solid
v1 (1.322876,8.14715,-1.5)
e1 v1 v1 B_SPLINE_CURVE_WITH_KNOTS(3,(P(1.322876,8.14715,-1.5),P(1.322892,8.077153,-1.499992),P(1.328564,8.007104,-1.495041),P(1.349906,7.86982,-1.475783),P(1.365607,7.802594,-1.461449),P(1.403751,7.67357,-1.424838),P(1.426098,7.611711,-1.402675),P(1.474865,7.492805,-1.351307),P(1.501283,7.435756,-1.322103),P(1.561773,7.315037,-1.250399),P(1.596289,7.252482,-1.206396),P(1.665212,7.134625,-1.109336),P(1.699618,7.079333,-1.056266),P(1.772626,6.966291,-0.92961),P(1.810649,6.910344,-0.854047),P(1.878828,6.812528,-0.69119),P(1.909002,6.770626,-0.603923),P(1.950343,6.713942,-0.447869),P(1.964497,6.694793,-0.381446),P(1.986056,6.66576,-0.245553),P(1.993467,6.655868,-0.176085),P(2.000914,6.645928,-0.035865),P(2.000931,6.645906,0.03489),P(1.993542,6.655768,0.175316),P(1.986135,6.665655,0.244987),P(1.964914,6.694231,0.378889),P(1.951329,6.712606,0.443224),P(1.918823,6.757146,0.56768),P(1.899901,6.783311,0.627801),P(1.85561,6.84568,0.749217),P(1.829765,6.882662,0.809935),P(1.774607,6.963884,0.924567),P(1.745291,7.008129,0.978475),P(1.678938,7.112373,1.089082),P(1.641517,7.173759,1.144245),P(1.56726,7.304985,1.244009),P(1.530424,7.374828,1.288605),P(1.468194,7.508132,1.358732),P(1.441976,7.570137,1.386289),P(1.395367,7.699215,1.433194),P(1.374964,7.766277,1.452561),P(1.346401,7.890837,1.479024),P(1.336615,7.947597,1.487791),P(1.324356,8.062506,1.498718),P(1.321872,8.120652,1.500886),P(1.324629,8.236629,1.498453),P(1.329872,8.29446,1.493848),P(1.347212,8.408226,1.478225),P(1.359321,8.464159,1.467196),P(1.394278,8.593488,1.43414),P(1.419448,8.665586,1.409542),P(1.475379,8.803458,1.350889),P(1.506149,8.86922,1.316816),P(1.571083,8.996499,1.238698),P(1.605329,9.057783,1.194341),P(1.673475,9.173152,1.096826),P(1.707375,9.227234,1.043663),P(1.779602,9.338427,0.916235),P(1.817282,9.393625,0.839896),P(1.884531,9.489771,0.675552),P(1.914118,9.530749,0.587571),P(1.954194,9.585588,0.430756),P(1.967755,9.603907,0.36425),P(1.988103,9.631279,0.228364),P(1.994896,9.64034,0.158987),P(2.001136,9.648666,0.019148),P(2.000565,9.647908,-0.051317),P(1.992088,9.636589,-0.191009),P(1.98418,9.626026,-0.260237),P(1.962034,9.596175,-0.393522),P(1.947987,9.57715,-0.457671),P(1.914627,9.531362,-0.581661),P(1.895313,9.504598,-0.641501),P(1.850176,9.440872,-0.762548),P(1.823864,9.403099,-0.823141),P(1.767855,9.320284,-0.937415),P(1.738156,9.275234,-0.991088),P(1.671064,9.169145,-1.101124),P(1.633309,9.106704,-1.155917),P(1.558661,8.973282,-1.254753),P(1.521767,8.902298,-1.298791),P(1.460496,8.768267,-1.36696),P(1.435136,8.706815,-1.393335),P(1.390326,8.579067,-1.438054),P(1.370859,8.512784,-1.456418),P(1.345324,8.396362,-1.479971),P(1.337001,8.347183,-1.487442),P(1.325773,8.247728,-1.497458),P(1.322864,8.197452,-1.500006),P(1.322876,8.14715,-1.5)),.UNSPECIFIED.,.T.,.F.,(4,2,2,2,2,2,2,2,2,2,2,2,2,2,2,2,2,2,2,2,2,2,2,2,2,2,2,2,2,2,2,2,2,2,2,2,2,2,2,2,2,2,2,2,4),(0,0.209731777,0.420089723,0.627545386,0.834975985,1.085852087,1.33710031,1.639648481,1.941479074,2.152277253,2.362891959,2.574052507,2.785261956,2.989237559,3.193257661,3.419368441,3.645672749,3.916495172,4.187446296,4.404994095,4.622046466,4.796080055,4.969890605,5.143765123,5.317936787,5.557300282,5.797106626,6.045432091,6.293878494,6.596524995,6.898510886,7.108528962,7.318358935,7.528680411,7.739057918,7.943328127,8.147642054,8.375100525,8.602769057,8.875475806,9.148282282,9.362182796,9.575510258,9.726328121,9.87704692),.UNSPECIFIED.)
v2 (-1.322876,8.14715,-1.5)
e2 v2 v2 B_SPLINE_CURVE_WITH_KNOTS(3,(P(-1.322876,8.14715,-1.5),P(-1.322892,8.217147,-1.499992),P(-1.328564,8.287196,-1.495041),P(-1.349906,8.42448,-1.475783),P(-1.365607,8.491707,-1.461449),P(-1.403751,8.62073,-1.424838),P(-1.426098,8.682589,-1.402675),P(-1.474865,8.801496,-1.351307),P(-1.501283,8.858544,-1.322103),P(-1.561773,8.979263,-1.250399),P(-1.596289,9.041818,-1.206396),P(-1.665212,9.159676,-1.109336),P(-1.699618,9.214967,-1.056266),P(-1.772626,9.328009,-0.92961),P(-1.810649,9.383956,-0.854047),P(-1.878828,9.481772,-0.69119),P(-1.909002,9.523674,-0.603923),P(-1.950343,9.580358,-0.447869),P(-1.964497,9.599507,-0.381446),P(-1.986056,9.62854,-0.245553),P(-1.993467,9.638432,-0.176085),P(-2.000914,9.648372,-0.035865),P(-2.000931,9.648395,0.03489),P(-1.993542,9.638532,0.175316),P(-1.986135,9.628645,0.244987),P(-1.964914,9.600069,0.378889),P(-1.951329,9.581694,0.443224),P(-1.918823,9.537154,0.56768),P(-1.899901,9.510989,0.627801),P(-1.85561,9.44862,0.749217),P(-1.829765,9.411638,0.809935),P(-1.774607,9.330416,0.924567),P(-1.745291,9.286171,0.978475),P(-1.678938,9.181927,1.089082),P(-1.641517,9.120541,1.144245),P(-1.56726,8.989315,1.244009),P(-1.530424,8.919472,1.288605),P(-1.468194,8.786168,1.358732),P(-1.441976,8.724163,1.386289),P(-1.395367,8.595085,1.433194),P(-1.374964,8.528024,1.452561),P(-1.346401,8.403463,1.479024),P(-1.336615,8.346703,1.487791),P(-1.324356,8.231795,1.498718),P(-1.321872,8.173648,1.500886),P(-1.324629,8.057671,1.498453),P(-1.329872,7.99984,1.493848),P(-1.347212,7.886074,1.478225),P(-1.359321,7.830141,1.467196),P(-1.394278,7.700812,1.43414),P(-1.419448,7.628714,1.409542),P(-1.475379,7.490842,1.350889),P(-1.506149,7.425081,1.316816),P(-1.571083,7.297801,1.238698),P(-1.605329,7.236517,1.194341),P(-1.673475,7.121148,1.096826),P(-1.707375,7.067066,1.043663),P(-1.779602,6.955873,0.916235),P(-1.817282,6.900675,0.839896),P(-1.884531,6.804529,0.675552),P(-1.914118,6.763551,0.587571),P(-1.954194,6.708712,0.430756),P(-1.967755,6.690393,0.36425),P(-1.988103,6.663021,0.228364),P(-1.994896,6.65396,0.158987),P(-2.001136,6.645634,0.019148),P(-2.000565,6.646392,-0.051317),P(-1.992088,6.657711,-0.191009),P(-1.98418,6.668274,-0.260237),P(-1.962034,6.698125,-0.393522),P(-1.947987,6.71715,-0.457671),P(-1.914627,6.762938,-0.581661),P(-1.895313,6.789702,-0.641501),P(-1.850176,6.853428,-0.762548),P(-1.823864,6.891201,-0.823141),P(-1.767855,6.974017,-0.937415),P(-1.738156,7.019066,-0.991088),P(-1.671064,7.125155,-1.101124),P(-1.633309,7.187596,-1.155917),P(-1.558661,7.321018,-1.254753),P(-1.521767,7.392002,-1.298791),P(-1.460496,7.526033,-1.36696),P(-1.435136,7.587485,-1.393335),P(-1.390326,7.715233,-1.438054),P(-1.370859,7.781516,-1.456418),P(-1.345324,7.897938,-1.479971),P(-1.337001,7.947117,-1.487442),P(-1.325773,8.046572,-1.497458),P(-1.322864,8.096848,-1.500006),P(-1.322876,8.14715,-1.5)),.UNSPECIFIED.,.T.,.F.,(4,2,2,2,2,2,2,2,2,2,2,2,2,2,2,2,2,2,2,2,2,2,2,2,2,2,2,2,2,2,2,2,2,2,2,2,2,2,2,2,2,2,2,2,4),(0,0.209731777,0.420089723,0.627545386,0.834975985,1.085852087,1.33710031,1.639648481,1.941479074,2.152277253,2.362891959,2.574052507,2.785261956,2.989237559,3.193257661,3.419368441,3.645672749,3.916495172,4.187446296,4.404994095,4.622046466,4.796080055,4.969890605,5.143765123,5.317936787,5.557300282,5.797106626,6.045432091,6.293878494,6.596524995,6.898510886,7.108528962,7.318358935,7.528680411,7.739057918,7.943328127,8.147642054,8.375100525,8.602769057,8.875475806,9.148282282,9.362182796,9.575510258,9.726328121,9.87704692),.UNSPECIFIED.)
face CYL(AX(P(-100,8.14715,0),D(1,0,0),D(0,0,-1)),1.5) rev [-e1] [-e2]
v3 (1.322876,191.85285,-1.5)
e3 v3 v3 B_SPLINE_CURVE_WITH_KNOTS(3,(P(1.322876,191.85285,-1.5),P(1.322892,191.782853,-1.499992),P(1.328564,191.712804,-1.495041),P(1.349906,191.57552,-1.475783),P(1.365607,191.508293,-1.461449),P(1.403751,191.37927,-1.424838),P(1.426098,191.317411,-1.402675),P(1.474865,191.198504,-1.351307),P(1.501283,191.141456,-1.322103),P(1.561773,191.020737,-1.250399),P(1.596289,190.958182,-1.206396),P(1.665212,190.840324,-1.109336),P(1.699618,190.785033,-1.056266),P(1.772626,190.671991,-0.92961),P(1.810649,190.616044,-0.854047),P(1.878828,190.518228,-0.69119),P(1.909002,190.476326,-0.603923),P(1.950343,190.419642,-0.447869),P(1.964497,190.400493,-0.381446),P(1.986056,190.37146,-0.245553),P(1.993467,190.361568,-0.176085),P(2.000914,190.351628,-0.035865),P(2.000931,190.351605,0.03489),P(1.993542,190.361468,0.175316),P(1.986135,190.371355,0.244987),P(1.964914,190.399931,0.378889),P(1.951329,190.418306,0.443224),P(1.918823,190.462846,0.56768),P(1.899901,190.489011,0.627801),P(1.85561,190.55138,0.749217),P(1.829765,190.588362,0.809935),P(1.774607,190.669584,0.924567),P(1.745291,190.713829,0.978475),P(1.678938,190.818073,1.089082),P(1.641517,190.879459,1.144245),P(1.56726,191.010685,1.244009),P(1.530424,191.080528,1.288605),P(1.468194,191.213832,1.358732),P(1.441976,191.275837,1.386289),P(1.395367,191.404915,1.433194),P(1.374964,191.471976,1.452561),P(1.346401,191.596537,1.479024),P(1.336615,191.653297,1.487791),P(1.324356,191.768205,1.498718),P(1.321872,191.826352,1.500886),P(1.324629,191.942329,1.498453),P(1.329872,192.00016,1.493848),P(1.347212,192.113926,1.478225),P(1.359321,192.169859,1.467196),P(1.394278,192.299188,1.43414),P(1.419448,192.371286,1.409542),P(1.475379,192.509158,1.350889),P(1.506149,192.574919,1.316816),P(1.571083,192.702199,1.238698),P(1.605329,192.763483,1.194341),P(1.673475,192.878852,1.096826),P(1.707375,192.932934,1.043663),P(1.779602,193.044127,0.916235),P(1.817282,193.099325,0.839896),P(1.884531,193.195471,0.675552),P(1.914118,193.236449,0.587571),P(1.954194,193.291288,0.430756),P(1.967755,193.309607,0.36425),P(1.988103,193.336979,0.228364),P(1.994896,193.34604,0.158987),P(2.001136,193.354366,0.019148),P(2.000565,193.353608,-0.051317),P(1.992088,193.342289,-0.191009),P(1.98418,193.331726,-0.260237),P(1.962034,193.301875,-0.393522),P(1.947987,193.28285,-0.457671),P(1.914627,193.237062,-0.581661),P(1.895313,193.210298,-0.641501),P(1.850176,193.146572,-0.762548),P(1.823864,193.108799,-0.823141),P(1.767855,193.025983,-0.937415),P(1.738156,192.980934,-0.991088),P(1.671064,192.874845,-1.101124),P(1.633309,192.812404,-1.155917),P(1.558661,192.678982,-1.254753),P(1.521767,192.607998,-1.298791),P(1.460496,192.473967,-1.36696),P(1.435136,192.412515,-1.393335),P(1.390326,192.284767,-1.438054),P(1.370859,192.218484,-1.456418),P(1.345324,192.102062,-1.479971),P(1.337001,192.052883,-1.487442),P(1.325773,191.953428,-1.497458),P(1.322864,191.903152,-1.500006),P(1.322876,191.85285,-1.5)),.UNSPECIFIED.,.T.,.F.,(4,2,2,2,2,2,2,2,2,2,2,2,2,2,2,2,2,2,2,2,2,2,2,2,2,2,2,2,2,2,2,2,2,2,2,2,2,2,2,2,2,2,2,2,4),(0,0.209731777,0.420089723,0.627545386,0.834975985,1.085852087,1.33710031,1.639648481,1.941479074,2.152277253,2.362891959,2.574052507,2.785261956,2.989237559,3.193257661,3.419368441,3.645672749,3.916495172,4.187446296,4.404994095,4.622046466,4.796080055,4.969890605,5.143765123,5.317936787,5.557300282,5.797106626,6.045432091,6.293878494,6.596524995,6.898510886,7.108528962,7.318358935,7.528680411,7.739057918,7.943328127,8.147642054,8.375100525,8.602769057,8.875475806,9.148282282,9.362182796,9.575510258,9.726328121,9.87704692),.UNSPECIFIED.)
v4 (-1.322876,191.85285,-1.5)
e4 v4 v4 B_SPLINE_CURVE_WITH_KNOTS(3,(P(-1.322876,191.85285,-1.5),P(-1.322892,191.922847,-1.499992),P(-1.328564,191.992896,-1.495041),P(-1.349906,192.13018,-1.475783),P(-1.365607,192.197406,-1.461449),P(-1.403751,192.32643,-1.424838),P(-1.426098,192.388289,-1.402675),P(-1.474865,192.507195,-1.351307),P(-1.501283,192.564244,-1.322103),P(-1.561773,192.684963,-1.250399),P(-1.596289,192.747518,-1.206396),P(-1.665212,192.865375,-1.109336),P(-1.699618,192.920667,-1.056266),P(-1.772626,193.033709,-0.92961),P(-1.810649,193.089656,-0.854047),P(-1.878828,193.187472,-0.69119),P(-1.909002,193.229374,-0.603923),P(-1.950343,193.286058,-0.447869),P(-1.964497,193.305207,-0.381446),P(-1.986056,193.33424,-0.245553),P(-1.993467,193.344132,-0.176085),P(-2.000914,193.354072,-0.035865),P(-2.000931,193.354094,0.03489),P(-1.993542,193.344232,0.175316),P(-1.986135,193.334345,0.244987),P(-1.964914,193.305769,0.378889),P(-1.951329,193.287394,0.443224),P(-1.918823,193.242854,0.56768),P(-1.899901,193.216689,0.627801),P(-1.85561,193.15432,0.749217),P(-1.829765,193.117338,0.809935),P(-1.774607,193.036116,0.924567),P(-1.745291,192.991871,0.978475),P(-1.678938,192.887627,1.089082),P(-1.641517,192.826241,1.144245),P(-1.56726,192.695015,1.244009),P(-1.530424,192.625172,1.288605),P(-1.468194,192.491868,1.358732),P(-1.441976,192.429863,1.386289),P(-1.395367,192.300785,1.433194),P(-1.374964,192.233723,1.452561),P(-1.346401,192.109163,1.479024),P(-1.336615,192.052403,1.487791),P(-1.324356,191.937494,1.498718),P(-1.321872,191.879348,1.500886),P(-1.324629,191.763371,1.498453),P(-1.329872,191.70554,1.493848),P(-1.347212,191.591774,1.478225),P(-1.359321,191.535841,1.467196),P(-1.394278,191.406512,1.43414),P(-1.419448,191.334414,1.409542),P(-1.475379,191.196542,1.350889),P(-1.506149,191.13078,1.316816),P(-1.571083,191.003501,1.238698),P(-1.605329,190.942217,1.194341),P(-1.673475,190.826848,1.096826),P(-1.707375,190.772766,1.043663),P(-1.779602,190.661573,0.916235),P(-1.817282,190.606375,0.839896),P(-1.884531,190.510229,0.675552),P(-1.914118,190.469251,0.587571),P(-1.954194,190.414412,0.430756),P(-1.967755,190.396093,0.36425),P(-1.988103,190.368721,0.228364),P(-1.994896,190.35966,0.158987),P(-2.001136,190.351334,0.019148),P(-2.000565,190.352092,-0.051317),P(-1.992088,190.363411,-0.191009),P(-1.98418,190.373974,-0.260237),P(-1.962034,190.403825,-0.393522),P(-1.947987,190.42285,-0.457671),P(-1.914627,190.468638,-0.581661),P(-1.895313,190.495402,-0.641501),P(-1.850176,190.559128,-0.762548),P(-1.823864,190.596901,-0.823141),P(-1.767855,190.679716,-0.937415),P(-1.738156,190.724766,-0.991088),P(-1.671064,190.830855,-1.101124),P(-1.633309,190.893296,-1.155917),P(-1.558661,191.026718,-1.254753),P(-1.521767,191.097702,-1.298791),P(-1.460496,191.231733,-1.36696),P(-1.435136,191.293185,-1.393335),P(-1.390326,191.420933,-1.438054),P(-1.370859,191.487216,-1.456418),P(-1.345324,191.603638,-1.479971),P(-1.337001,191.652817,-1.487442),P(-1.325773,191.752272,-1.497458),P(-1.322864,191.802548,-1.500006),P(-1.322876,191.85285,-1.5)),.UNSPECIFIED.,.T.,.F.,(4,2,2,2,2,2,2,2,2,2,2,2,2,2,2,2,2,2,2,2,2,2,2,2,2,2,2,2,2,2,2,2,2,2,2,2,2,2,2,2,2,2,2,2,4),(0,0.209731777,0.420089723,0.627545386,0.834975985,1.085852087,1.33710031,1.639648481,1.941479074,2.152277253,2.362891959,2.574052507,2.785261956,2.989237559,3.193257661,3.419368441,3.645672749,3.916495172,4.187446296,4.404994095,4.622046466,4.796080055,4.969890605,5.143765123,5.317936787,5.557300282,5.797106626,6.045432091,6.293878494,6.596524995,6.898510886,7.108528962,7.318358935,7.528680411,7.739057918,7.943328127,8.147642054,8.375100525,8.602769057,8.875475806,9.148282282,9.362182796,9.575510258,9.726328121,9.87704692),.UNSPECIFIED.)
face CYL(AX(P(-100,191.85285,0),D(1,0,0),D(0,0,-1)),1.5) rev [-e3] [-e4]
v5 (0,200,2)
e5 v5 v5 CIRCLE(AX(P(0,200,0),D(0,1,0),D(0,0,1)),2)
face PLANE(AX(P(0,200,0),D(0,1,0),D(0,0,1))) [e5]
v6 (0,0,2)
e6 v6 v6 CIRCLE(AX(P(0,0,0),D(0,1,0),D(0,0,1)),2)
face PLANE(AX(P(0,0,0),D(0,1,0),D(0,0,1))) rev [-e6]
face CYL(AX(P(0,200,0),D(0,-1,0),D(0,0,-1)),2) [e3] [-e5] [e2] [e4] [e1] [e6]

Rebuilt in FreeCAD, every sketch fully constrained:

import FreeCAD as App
import Part
import Sketcher

V = App.Vector
Q = App.Units.Quantity

doc = App.newDocument("Part")
params = doc.addObject("Spreadsheet::Sheet", "Params")
for row, (alias, value) in enumerate([
    ("sketch1_diameter", "4 mm"),
    ("pad1_length", "200 mm"),
    ("sketch2_diameter", "3 mm"),
    ("pocket1_length", "200 mm"),
], start=1):
    params.set(f"A{row}", alias)
    params.set(f"B{row}", "=" + value)
    params.setAlias(f"B{row}", alias)

body = doc.addObject("PartDesign::Body", "Body")

# Sketch on XZ plane
sketch1 = doc.addObject("Sketcher::SketchObject", "Sketch")
body.addObject(sketch1)
sketch1.AttachmentSupport = (doc.XZ_Plane, [""])
sketch1.MapMode = "FlatFace"
sketch1.addGeometry(Part.Circle(V(0, 0, 0), V(0, 0, 1), 2), False)
sketch1.addConstraint([
    Sketcher.Constraint("Coincident", 0, 3, -1, 1),
    Sketcher.Constraint("Diameter", 0, Q("4 mm")),
])
sketch1.setExpression("Constraints[1]", "Params.sketch1_diameter")
pad1 = doc.addObject("PartDesign::Pad", "Pad")
body.addObject(pad1)
pad1.Profile = sketch1
pad1.setExpression("Length", "Params.pad1_length")
pad1.Reversed = True

# Sketch on YZ plane
sketch2 = doc.addObject("Sketcher::SketchObject", "Sketch001")
body.addObject(sketch2)
sketch2.AttachmentSupport = (doc.YZ_Plane, [""])
sketch2.MapMode = "FlatFace"
sketch2.addGeometry([
    Part.Circle(V(8.1, 0, 0), V(0, 0, 1), 1.5),
    Part.Circle(V(191.9, 0, 0), V(0, 0, 1), 1.5),
], False)
sketch2.addConstraint([
    Sketcher.Constraint("Equal", 0, 1),
    Sketcher.Constraint("PointOnObject", 0, 3, -1),
    Sketcher.Constraint("PointOnObject", 1, 3, -1),
    Sketcher.Constraint("Diameter", 0, Q("3 mm")),
    Sketcher.Constraint("DistanceX", 0, 3, 1, 3, Q("183.7057 mm")),
    Sketcher.Constraint("DistanceX", -1, 1, 0, 3, Q("8.14715 mm")),
])
sketch2.setExpression("Constraints[3]", "Params.sketch2_diameter")
pocket1 = doc.addObject("PartDesign::Pocket", "Pocket")
body.addObject(pocket1)
pocket1.Profile = sketch2
pocket1.setExpression("Length", "Params.pocket1_length")
pocket1.Midplane = True

doc.recompute()
